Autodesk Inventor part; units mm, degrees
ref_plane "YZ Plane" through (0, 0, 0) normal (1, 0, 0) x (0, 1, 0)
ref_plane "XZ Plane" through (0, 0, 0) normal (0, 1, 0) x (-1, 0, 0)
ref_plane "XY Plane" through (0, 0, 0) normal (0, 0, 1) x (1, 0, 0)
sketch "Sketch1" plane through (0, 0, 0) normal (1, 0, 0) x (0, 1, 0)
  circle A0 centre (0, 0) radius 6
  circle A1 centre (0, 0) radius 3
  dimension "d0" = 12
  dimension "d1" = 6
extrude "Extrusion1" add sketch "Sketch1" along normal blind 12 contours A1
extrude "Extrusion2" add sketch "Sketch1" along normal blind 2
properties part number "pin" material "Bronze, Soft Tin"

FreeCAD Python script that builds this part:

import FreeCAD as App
import Part
import Sketcher

doc = App.newDocument("Part")
params = doc.addObject("Spreadsheet::Sheet", "Params")
for row, (alias, value) in enumerate([
    ("sketch1_diameter", "6 mm"),
    ("pad1_length", "12 mm"),
    ("sketch2_diameter", "12 mm"),
    ("sketch2_diameter2", "6 mm"),
    ("pad2_length", "2 mm"),
], start=1):
    params.set(f"A{row}", alias)
    params.set(f"B{row}", "=" + value)
    params.setAlias(f"B{row}", alias)

body = doc.addObject("PartDesign::Body", "Body")

# Sketch on YZ plane
sketch1 = body.newObject("Sketcher::SketchObject", "Sketch")
sketch1.AttachmentSupport = (doc.getObject("YZ_Plane"), [""])
sketch1.MapMode = "FlatFace"
sketch1.addGeometry(Part.Circle(App.Vector(0, 0, 0), App.Vector(0, 0, 1), 3), False)
sketch1.addConstraint(Sketcher.Constraint("Coincident", 0, 3, -1, 1))
sketch1.addConstraint(Sketcher.Constraint("Diameter", 0, 6.0))
sketch1.setExpression("Constraints[1]", "Params.sketch1_diameter")
pad1 = body.newObject("PartDesign::Pad", "Pad")
pad1.Profile = sketch1
pad1.setExpression("Length", "Params.pad1_length")

# Sketch on YZ plane
sketch2 = body.newObject("Sketcher::SketchObject", "Sketch001")
sketch2.AttachmentSupport = (doc.getObject("YZ_Plane"), [""])
sketch2.MapMode = "FlatFace"
sketch2.addGeometry(Part.Circle(App.Vector(0, 0, 0), App.Vector(0, 0, 1), 6), False)
sketch2.addGeometry(Part.Circle(App.Vector(0, 0, 0), App.Vector(0, 0, 1), 3), False)
sketch2.addConstraint(Sketcher.Constraint("Coincident", 0, 3, -1, 1))
sketch2.addConstraint(Sketcher.Constraint("Coincident", 1, 3, -1, 1))
sketch2.addConstraint(Sketcher.Constraint("Diameter", 0, 12.0))
sketch2.addConstraint(Sketcher.Constraint("Diameter", 1, 6.0))
sketch2.setExpression("Constraints[2]", "Params.sketch2_diameter")
sketch2.setExpression("Constraints[3]", "Params.sketch2_diameter2")
pad2 = body.newObject("PartDesign::Pad", "Pad001")
pad2.Profile = sketch2
pad2.setExpression("Length", "Params.pad2_length")

doc.recompute()
